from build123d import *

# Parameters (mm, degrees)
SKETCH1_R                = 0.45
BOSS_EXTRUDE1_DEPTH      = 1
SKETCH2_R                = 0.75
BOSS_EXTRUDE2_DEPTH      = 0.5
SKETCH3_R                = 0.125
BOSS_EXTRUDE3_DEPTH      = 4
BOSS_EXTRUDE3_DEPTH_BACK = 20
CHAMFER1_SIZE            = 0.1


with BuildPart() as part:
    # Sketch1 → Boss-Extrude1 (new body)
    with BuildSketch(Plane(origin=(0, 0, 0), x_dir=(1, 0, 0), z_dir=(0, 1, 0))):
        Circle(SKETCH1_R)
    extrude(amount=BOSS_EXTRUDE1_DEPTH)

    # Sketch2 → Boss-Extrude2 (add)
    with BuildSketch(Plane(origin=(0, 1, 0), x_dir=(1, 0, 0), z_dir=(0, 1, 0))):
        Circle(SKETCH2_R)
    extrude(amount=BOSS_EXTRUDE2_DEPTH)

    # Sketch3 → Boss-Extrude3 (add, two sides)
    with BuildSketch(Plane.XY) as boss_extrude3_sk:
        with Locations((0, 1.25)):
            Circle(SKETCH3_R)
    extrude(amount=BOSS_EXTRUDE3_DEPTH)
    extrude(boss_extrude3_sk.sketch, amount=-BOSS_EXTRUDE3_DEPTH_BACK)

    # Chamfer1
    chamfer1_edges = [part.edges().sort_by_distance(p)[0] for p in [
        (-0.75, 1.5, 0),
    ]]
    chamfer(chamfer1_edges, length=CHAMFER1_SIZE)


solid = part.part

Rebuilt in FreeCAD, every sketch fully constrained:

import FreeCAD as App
import Part
import Sketcher

V = App.Vector


def edges_at(feature, points):
    """Names of the edges that pass closest to the given points."""
    edges = feature.Shape.Edges
    near = lambda p: min(range(len(edges)), key=lambda i: edges[i].distToShape(Part.Vertex(*p))[0])
    return sorted({f"Edge{near(p) + 1}" for p in points})

doc = App.newDocument("Part")
body = doc.addObject("PartDesign::Body", "Body")

# Sketch on XZ plane
sketch1 = body.newObject("Sketcher::SketchObject", "Sketch")
sketch1.AttachmentSupport = (doc.getObject("XZ_Plane"), [""])
sketch1.MapMode = "FlatFace"
sketch1.addGeometry(Part.Circle(V(0, 0, 0), V(0, 0, 1), 0.45), False)
sketch1.addConstraint([
    Sketcher.Constraint("Coincident", 0, 3, -1, 1),
    Sketcher.Constraint("Diameter", 0, 0.9),
])
pad1 = body.newObject("PartDesign::Pad", "Pad")
pad1.Profile = sketch1
pad1.Length = 1
pad1.Reversed = True

# Sketch on XZ plane
sketch2 = body.newObject("Sketcher::SketchObject", "Sketch001")
sketch2.AttachmentSupport = (doc.getObject("XZ_Plane"), [""])
sketch2.MapMode = "FlatFace"
sketch2.AttachmentOffset = App.Placement(V(0, 0, -1), App.Rotation())
sketch2.addGeometry(Part.Circle(V(0, 0, 0), V(0, 0, 1), 0.75), False)
sketch2.addConstraint([
    Sketcher.Constraint("Coincident", 0, 3, -1, 1),
    Sketcher.Constraint("Diameter", 0, 1.5),
])
pad2 = body.newObject("PartDesign::Pad", "Pad001")
pad2.Profile = sketch2
pad2.Length = 0.5
pad2.Reversed = True

# Sketch on XY plane
sketch3 = body.newObject("Sketcher::SketchObject", "Sketch002")
sketch3.AttachmentSupport = (doc.getObject("XY_Plane"), [""])
sketch3.MapMode = "FlatFace"
sketch3.addGeometry(Part.Circle(V(0, 1.25, 0), V(0, 0, 1), 0.125), False)
sketch3.addConstraint([
    Sketcher.Constraint("PointOnObject", 0, 3, -2),
    Sketcher.Constraint("Diameter", 0, 0.25),
    Sketcher.Constraint("DistanceY", -1, 1, 0, 3, 1.25),
])
pad3 = body.newObject("PartDesign::Pad", "Pad002")
pad3.Profile = sketch3
pad3.Type = "TwoLengths"
pad3.Length = 4
pad3.Length2 = 20
doc.recompute()

chamfer = body.newObject("PartDesign::Chamfer", "Chamfer")
chamfer.Base = (pad3, edges_at(pad3, [(-0.75, 1.5, 0)]))
chamfer.Size = 0.1

doc.recompute()
